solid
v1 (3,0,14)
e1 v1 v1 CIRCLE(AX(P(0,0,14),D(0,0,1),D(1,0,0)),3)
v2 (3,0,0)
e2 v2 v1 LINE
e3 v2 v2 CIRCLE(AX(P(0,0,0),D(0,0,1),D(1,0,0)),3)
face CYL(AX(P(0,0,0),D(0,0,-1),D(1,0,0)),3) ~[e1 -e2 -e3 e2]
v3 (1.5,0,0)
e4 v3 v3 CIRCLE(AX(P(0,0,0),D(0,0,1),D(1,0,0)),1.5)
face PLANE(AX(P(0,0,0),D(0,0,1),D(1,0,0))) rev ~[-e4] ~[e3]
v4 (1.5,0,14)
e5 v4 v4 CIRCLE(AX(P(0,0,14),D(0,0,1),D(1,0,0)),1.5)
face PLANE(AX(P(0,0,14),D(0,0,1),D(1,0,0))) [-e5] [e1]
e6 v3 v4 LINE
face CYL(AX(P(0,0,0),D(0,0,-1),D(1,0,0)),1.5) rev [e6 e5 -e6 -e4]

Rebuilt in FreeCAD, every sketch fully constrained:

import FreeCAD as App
import Part
import Sketcher

V = App.Vector

doc = App.newDocument("Part")
body = doc.addObject("PartDesign::Body", "Body")

# Sketch on XY plane
sketch1 = doc.addObject("Sketcher::SketchObject", "Sketch")
body.addObject(sketch1)
sketch1.AttachmentSupport = (doc.XY_Plane, [""])
sketch1.MapMode = "FlatFace"
sketch1.addGeometry(Part.Circle(V(0, 0, 0), V(0, 0, 1), 3), False)
sketch1.addGeometry(Part.Circle(V(0, 0, 0), V(0, 0, 1), 1.5), False)
sketch1.addConstraint(Sketcher.Constraint("Coincident", 0, 3, -1, 1))
sketch1.addConstraint(Sketcher.Constraint("Coincident", 1, 3, -1, 1))
sketch1.addConstraint(Sketcher.Constraint("Diameter", 0, 6.0))
sketch1.addConstraint(Sketcher.Constraint("Diameter", 1, 3.0))
pad1 = doc.addObject("PartDesign::Pad", "Pad")
body.addObject(pad1)
pad1.Profile = sketch1
pad1.Length = 14

doc.recompute()
